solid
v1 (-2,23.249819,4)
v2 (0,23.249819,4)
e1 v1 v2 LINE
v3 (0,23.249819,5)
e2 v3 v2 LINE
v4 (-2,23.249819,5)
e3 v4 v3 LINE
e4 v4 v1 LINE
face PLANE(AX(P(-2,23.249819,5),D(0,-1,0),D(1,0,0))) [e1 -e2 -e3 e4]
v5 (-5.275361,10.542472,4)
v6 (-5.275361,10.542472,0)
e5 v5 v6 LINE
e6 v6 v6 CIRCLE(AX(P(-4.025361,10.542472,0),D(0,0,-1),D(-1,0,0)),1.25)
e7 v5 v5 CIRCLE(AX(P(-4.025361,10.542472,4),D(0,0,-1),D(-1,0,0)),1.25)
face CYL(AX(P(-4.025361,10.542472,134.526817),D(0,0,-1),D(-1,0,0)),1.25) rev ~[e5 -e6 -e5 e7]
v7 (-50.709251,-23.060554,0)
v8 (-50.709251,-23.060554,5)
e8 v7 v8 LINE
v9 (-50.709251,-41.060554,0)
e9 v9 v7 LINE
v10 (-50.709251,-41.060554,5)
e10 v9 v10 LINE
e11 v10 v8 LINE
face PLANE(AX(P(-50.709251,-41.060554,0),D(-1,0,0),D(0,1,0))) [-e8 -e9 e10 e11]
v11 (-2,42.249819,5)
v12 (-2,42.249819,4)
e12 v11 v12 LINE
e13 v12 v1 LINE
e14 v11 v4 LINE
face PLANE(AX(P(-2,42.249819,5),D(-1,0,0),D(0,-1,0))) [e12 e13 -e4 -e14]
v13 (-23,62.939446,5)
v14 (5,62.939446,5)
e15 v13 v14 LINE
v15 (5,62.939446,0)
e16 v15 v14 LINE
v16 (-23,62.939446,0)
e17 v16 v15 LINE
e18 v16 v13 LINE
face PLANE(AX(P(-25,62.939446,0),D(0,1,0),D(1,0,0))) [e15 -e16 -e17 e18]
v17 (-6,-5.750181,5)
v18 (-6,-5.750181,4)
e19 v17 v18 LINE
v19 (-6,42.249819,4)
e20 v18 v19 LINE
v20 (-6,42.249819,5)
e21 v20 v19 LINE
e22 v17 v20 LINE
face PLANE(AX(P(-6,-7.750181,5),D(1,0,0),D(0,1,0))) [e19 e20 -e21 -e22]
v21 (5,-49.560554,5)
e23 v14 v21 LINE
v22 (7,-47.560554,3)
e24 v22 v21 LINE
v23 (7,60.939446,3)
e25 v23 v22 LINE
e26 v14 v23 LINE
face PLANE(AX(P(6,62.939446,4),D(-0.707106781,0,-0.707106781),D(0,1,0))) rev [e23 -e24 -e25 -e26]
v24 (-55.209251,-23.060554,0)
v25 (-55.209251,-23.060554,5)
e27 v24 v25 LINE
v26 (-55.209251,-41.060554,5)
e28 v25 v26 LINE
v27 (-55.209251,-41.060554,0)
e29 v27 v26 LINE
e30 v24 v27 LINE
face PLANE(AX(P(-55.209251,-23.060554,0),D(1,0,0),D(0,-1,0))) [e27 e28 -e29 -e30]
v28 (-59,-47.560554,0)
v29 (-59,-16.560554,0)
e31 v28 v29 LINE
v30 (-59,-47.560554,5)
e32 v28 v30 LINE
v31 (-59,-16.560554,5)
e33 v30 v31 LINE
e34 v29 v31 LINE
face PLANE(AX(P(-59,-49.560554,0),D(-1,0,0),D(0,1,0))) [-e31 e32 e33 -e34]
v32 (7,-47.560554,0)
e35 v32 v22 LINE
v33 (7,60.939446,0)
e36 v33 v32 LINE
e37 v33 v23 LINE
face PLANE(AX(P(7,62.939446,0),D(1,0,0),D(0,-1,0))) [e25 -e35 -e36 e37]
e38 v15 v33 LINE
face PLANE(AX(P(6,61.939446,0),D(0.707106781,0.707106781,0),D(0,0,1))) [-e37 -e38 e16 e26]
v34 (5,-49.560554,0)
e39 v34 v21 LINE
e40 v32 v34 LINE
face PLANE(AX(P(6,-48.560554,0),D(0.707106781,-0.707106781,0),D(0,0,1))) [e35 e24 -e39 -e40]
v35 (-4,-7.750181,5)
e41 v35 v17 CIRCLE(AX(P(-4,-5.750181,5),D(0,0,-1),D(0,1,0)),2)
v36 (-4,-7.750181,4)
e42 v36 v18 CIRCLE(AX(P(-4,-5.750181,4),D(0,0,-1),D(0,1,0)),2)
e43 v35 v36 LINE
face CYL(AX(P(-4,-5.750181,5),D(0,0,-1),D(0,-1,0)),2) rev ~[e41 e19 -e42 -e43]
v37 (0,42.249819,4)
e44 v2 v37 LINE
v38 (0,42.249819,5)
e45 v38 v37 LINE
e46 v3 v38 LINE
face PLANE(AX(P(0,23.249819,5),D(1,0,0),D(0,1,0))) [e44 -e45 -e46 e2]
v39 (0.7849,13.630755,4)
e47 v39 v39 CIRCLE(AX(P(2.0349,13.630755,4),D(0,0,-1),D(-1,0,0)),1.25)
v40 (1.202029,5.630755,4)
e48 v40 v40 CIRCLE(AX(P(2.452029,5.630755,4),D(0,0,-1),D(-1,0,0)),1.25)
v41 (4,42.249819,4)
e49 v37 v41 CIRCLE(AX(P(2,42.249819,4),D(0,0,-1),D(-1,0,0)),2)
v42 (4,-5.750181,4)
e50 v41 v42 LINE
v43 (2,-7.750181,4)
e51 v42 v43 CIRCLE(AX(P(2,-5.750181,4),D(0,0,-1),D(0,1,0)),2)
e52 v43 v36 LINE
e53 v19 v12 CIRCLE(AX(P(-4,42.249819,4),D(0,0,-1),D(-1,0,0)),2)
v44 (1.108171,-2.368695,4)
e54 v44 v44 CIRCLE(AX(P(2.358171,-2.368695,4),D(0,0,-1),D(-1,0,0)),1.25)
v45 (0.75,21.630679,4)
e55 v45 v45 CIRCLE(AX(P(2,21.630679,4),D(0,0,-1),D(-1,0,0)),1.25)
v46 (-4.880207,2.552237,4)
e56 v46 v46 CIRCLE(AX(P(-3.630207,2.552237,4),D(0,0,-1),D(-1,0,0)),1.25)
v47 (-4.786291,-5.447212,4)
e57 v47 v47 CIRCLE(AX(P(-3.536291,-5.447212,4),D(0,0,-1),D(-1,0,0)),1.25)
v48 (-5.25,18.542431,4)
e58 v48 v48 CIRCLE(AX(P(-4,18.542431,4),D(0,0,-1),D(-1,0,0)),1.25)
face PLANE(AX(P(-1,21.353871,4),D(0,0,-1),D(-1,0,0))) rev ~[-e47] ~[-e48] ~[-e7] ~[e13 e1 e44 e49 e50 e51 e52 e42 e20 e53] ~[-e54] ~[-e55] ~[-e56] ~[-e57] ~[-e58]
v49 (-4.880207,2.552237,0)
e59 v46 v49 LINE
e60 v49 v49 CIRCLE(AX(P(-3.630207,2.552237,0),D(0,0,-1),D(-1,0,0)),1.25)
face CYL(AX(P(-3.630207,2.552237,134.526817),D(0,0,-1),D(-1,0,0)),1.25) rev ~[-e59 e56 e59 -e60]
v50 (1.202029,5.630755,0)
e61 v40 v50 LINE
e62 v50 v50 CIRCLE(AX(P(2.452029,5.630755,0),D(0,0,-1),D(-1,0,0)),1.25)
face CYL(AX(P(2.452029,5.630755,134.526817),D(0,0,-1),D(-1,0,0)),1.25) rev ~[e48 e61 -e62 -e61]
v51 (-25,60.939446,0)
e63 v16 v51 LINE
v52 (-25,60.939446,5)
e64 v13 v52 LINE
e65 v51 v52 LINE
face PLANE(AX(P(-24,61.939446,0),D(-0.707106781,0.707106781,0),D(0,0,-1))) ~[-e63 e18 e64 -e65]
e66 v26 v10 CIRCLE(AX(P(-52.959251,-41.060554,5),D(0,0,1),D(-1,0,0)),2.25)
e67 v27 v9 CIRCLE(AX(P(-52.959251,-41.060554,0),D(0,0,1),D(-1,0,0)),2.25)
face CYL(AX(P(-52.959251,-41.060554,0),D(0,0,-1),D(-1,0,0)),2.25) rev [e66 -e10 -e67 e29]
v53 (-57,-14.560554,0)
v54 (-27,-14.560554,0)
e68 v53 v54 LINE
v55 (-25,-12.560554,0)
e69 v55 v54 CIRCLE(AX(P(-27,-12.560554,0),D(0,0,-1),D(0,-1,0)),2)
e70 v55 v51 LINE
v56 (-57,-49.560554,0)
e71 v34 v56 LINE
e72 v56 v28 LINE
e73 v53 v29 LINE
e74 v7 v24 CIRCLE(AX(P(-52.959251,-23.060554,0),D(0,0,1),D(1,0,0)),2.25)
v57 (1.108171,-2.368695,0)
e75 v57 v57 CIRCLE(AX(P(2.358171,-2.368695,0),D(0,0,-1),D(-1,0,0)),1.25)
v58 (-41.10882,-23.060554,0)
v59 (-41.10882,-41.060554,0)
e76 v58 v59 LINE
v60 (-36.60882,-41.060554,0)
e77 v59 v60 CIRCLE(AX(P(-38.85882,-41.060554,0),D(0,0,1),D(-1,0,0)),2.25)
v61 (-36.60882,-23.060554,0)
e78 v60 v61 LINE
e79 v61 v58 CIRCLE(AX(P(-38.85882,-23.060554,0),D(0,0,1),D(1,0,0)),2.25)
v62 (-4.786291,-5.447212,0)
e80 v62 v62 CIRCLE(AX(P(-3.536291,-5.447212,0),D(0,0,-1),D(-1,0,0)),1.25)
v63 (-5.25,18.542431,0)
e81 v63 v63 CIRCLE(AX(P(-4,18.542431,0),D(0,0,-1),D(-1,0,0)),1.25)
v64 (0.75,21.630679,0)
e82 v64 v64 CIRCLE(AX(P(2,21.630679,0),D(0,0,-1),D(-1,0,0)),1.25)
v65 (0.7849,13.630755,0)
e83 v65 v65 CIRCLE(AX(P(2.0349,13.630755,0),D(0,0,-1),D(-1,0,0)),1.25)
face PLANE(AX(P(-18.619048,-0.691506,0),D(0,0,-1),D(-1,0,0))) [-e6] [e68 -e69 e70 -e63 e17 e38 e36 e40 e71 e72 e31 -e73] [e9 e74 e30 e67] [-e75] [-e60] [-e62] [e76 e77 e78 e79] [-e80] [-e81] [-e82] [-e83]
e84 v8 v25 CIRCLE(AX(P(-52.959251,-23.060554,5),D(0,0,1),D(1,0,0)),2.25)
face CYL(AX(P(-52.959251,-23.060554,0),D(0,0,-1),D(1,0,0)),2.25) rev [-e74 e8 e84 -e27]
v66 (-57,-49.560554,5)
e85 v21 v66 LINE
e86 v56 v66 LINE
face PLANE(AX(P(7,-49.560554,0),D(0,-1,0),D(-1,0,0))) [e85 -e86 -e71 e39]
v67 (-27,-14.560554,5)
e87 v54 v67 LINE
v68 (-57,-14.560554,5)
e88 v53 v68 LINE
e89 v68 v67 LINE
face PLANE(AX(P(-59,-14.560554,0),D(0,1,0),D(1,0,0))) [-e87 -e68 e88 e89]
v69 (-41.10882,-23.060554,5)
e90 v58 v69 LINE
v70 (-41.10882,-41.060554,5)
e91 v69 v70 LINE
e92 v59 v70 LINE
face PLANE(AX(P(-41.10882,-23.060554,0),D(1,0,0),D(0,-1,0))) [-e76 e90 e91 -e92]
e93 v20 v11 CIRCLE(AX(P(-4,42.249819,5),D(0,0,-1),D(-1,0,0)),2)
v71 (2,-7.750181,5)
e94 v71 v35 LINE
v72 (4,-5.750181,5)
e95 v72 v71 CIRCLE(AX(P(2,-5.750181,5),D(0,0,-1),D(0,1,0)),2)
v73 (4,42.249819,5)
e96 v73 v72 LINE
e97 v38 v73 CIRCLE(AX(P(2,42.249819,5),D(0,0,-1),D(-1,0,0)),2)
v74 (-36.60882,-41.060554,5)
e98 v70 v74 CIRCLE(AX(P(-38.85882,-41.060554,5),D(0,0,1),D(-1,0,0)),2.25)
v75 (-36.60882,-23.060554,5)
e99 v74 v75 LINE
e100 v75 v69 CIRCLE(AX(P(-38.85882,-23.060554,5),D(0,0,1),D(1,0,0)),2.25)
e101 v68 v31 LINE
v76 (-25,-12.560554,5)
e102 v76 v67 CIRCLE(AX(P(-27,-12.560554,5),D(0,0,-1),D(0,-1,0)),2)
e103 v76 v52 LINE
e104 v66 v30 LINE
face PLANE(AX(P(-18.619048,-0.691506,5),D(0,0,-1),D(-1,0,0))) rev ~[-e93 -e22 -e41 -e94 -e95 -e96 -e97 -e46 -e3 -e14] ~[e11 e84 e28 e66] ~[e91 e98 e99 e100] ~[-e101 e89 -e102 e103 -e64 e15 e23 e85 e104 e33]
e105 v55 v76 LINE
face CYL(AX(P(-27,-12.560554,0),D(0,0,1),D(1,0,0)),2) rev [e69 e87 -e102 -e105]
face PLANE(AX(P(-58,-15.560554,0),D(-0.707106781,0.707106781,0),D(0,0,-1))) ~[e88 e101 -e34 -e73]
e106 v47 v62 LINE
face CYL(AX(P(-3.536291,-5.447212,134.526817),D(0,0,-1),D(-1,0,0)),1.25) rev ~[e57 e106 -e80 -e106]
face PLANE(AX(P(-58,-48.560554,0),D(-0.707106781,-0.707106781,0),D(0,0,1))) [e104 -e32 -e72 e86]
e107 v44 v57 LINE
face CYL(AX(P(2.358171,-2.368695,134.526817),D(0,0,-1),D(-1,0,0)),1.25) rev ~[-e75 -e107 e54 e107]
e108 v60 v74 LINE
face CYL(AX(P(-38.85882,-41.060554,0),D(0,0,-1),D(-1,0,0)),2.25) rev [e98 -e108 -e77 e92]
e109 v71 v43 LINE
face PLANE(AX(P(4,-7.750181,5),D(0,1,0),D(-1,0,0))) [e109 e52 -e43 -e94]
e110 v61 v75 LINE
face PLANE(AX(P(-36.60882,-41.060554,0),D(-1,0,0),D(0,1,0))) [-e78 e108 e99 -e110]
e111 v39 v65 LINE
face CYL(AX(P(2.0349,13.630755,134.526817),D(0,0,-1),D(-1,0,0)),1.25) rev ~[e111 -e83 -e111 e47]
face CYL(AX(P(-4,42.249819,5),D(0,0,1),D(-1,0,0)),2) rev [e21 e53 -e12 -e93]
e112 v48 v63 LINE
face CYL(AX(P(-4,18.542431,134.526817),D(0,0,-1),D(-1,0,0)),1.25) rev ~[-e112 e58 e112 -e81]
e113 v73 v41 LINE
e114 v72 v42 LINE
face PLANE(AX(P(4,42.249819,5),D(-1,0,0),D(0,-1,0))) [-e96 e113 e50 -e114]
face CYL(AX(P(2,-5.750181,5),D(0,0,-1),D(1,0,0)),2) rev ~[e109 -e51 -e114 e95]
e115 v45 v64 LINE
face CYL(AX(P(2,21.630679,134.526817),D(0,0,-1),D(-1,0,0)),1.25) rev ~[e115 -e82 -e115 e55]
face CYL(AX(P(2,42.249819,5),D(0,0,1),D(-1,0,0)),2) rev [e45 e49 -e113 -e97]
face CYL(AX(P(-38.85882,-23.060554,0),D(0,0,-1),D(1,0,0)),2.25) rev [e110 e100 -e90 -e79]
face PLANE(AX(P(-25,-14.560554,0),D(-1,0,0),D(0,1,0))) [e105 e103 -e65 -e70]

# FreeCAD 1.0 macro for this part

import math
import FreeCAD as App
import Part
import Sketcher


def edges_at(feature, points):
    """Names of the edges that pass closest to the given points."""
    edges = feature.Shape.Edges
    near = lambda p: min(range(len(edges)), key=lambda i: edges[i].distToShape(Part.Vertex(*p))[0])
    return sorted({f"Edge{near(p) + 1}" for p in points})


def add_polygon(sketch, points):
    """Adds a closed chain of lines whose ends are joined by coincident constraints."""
    first, n = sketch.GeometryCount, len(points)
    for a, b in zip(points, points[1:] + points[:1]):
        sketch.addGeometry(Part.LineSegment(App.Vector(*a, 0), App.Vector(*b, 0)), False)
    for i in range(n):
        sketch.addConstraint(Sketcher.Constraint("Coincident", first + i, 2, first + (i + 1) % n, 1))

doc = App.newDocument("Part")
body = doc.addObject("PartDesign::Body", "Body")

# Sketch on XY plane
sketch1 = body.newObject("Sketcher::SketchObject", "Sketch")
sketch1.AttachmentSupport = (doc.getObject("XY_Plane"), [""])
sketch1.MapMode = "FlatFace"
add_polygon(sketch1, [(7, 62.9), (-25, 62.9), (-25, -14.6), (-59, -14.6), (-59, -49.6), (7, -49.6)])  # lines 0-5
sketch1.addGeometry(Part.ArcOfCircle(Part.Circle(App.Vector(-38.9, -23.1, 0), App.Vector(0, 0, 1), 2.2), math.radians(0), math.radians(180)), False)  # 6
sketch1.addGeometry(Part.LineSegment(App.Vector(-36.6, -23.1, 0), App.Vector(-36.6, -41.1, 0)), False)  # 7
sketch1.addGeometry(Part.ArcOfCircle(Part.Circle(App.Vector(-38.9, -41.1, 0), App.Vector(0, 0, 1), 2.2), math.radians(180), math.radians(360)), False)  # 8
sketch1.addGeometry(Part.LineSegment(App.Vector(-41.1, -41.1, 0), App.Vector(-41.1, -23.1, 0)), False)  # 9
sketch1.addGeometry(Part.ArcOfCircle(Part.Circle(App.Vector(-53, -23.1, 0), App.Vector(0, 0, 1), 2.2), math.radians(0), math.radians(180)), False)  # 10
sketch1.addGeometry(Part.LineSegment(App.Vector(-50.7, -23.1, 0), App.Vector(-50.7, -41.1, 0)), False)  # 11
sketch1.addGeometry(Part.ArcOfCircle(Part.Circle(App.Vector(-53, -41.1, 0), App.Vector(0, 0, 1), 2.2), math.radians(180), math.radians(360)), False)  # 12
sketch1.addGeometry(Part.LineSegment(App.Vector(-55.2, -41.1, 0), App.Vector(-55.2, -23.1, 0)), False)  # 13
sketch1.addConstraint([
    Sketcher.Constraint("Tangent", 6, 1, 7, 1),
    Sketcher.Constraint("Tangent", 7, 2, 8, 2),
    Sketcher.Constraint("Tangent", 8, 1, 9, 1),
    Sketcher.Constraint("Tangent", 9, 2, 6, 2),
    Sketcher.Constraint("Tangent", 10, 1, 11, 1),
    Sketcher.Constraint("Tangent", 11, 2, 12, 2),
    Sketcher.Constraint("Tangent", 12, 1, 13, 1),
    Sketcher.Constraint("Tangent", 13, 2, 10, 2),
    Sketcher.Constraint("Horizontal", 0),
    Sketcher.Constraint("Vertical", 1),
    Sketcher.Constraint("Horizontal", 2),
    Sketcher.Constraint("Vertical", 3),
    Sketcher.Constraint("Horizontal", 4),
    Sketcher.Constraint("Vertical", 5),
    Sketcher.Constraint("Vertical", 7),
    Sketcher.Constraint("Vertical", 9),
    Sketcher.Constraint("Vertical", 11),
    Sketcher.Constraint("Vertical", 13),
    Sketcher.Constraint("Equal", 8, 10),
    Sketcher.Constraint("Horizontal", 6, 3, 10, 3),
    Sketcher.Constraint("Horizontal", 8, 3, 12, 3),
    Sketcher.Constraint("DistanceX", 0, 2, 0, 1, 32.0),
    Sketcher.Constraint("DistanceX", 2, 2, 2, 1, 34.0),
    Sketcher.Constraint("DistanceY", 3, 2, 3, 1, 35.0),
    Sketcher.Constraint("DistanceY", 7, 2, 7, 1, 18.0),
    Sketcher.Constraint("Radius", 6, 2.25),
    Sketcher.Constraint("DistanceY", 1, 2, 1, 1, 77.5),
    Sketcher.Constraint("DistanceX", 0, 2, -1, 1, 25.0),
    Sketcher.Constraint("DistanceY", 6, 3, 0, 2, 86.0),
    Sketcher.Constraint("DistanceX", 6, 3, -1, 1, 38.85882),
    Sketcher.Constraint("DistanceX", 10, 3, -1, 1, 52.959251),
    Sketcher.Constraint("DistanceY", 6, 3, -1, 1, 23.060554),
])
pad1 = body.newObject("PartDesign::Pad", "Pad")
pad1.Profile = sketch1
pad1.Length = 5

# Sketch on XY plane
sketch2 = body.newObject("Sketcher::SketchObject", "Sketch001")
sketch2.AttachmentSupport = (doc.getObject("XY_Plane"), [""])
sketch2.MapMode = "FlatFace"
sketch2.AttachmentOffset = App.Placement(App.Vector(0, 0, 5), App.Rotation())
sketch2.addGeometry([
    Part.LineSegment(App.Vector(-2, 23.2, 0), App.Vector(-2, 42.2, 0)),  # 0
    Part.ArcOfCircle(Part.Circle(App.Vector(-4, 42.2, 0), App.Vector(0, 0, 1), 2), math.radians(0), math.radians(180)),  # 1
    Part.LineSegment(App.Vector(-6, 42.2, 0), App.Vector(-6, -7.8, 0)),  # 2
    Part.LineSegment(App.Vector(-6, -7.8, 0), App.Vector(4, -7.8, 0)),  # 3
    Part.LineSegment(App.Vector(4, -7.8, 0), App.Vector(4, 42.2, 0)),  # 4
    Part.ArcOfCircle(Part.Circle(App.Vector(2, 42.2, 0), App.Vector(0, 0, 1), 2), math.radians(0), math.radians(180)),  # 5
    Part.LineSegment(App.Vector(0, 42.2, 0), App.Vector(0, 23.2, 0)),  # 6
    Part.LineSegment(App.Vector(0, 23.2, 0), App.Vector(-2, 23.2, 0)),  # 7
], False)
sketch2.addConstraint([
    Sketcher.Constraint("Tangent", 0, 2, 1, 1),
    Sketcher.Constraint("Tangent", 1, 2, 2, 1),
    Sketcher.Constraint("Coincident", 2, 2, 3, 1),
    Sketcher.Constraint("Coincident", 3, 2, 4, 1),
    Sketcher.Constraint("Tangent", 4, 2, 5, 1),
    Sketcher.Constraint("Tangent", 5, 2, 6, 1),
    Sketcher.Constraint("Coincident", 6, 2, 7, 1),
    Sketcher.Constraint("Coincident", 7, 2, 0, 1),
    Sketcher.Constraint("Vertical", 0),
    Sketcher.Constraint("Vertical", 2),
    Sketcher.Constraint("Horizontal", 3),
    Sketcher.Constraint("Vertical", 4),
    Sketcher.Constraint("Vertical", 6),
    Sketcher.Constraint("Horizontal", 7),
    Sketcher.Constraint("Equal", 1, 5),
    Sketcher.Constraint("PointOnObject", 5, 2, -2),
    Sketcher.Constraint("Horizontal", 1, 3, 5, 3),
    Sketcher.Constraint("Radius", 1, 2.0),
    Sketcher.Constraint("DistanceX", 3, 1, 3, 2, 10.0),
    Sketcher.Constraint("DistanceY", 0, 1, 0, 2, 19.0),
    Sketcher.Constraint("DistanceY", 2, 2, 2, 1, 50.0),
    Sketcher.Constraint("DistanceY", -1, 1, 1, 3, 42.249819),
])
pocket1 = body.newObject("PartDesign::Pocket", "Pocket")
pocket1.Profile = sketch2
pocket1.Length = 1
doc.recompute()

fillet = body.newObject("PartDesign::Fillet", "Fillet")
fillet.Base = (pocket1, edges_at(pocket1, [(4, -7.75, 4.5), (-6, -7.75, 4.5)]))
fillet.Radius = 2

# Sketch on XY plane
sketch3 = body.newObject("Sketcher::SketchObject", "Sketch002")
sketch3.AttachmentSupport = (doc.getObject("XY_Plane"), [""])
sketch3.MapMode = "FlatFace"
sketch3.AttachmentOffset = App.Placement(App.Vector(0, 0, 4), App.Rotation())
sketch3.addGeometry([
    Part.Circle(App.Vector(-4, 18.5, 0), App.Vector(0, 0, 1), 1.2),  # 0
    Part.Circle(App.Vector(2, 21.6, 0), App.Vector(0, 0, 1), 1.2),  # 1
    Part.Circle(App.Vector(2, 13.6, 0), App.Vector(0, 0, 1), 1.2),  # 2
    Part.Circle(App.Vector(-4, 10.5, 0), App.Vector(0, 0, 1), 1.2),  # 3
    Part.Circle(App.Vector(2.5, 5.6, 0), App.Vector(0, 0, 1), 1.2),  # 4
    Part.Circle(App.Vector(-3.6, 2.6, 0), App.Vector(0, 0, 1), 1.2),  # 5
    Part.Circle(App.Vector(2.4, -2.4, 0), App.Vector(0, 0, 1), 1.2),  # 6
    Part.Circle(App.Vector(-3.5, -5.4, 0), App.Vector(0, 0, 1), 1.2),  # 7
], False)
sketch3.addConstraint([
    Sketcher.Constraint("Equal", 0, 1),
    Sketcher.Constraint("Equal", 1, 2),
    Sketcher.Constraint("Equal", 2, 3),
    Sketcher.Constraint("Equal", 3, 4),
    Sketcher.Constraint("Equal", 4, 5),
    Sketcher.Constraint("Equal", 5, 6),
    Sketcher.Constraint("Equal", 6, 7),
    Sketcher.Constraint("Diameter", 0, 2.5),
    Sketcher.Constraint("DistanceX", 0, 3, -1, 1, 4.0),
    Sketcher.Constraint("DistanceX", -1, 1, 1, 3, 2.0),
    Sketcher.Constraint("DistanceY", 4, 3, 2, 3, 8.0),
    Sketcher.Constraint("DistanceX", -1, 1, 2, 3, 2.0349),
    Sketcher.Constraint("DistanceY", -1, 1, 0, 3, 18.542431),
    Sketcher.Constraint("DistanceY", -1, 1, 1, 3, 21.630679),
    Sketcher.Constraint("DistanceX", 3, 3, -1, 1, 4.025361),
    Sketcher.Constraint("DistanceY", -1, 1, 3, 3, 10.542472),
    Sketcher.Constraint("DistanceX", -1, 1, 4, 3, 2.452029),
    Sketcher.Constraint("DistanceX", -1, 1, 6, 3, 2.358171),
    Sketcher.Constraint("DistanceX", 7, 3, -1, 1, 3.536291),
    Sketcher.Constraint("DistanceY", 7, 3, -1, 1, 5.447212),
    Sketcher.Constraint("DistanceY", 5, 3, 1, 3, 19.078442),
    Sketcher.Constraint("DistanceY", 6, 3, 5, 3, 4.920932),
    Sketcher.Constraint("DistanceY", 6, 3, 4, 3, 7.999449),
    Sketcher.Constraint("DistanceX", 5, 3, -1, 1, 3.630207),
])
doc.recompute()
hole = body.newObject("PartDesign::Hole", "Hole")
hole.Profile = sketch3
hole.ThreadType = "None"
hole.Diameter = 2.5
hole.DepthType = "ThroughAll"
doc.recompute()

chamfer = body.newObject("PartDesign::Chamfer", "Chamfer")
chamfer.Base = (hole, edges_at(hole, [
    (-25, 62.939, 2.5),
    (7, 62.939, 2.5),
    (7, -49.561, 2.5),
    (-59, -49.561, 2.5),
    (-59, -14.561, 2.5),
    (7, 6.689, 5),
]))
chamfer.Size = 2
doc.recompute()

fillet2 = body.newObject("PartDesign::Fillet", "Fillet001")
fillet2.Base = (chamfer, edges_at(chamfer, [(-25, -14.561, 2.5)]))
fillet2.Radius = 2

doc.recompute()
